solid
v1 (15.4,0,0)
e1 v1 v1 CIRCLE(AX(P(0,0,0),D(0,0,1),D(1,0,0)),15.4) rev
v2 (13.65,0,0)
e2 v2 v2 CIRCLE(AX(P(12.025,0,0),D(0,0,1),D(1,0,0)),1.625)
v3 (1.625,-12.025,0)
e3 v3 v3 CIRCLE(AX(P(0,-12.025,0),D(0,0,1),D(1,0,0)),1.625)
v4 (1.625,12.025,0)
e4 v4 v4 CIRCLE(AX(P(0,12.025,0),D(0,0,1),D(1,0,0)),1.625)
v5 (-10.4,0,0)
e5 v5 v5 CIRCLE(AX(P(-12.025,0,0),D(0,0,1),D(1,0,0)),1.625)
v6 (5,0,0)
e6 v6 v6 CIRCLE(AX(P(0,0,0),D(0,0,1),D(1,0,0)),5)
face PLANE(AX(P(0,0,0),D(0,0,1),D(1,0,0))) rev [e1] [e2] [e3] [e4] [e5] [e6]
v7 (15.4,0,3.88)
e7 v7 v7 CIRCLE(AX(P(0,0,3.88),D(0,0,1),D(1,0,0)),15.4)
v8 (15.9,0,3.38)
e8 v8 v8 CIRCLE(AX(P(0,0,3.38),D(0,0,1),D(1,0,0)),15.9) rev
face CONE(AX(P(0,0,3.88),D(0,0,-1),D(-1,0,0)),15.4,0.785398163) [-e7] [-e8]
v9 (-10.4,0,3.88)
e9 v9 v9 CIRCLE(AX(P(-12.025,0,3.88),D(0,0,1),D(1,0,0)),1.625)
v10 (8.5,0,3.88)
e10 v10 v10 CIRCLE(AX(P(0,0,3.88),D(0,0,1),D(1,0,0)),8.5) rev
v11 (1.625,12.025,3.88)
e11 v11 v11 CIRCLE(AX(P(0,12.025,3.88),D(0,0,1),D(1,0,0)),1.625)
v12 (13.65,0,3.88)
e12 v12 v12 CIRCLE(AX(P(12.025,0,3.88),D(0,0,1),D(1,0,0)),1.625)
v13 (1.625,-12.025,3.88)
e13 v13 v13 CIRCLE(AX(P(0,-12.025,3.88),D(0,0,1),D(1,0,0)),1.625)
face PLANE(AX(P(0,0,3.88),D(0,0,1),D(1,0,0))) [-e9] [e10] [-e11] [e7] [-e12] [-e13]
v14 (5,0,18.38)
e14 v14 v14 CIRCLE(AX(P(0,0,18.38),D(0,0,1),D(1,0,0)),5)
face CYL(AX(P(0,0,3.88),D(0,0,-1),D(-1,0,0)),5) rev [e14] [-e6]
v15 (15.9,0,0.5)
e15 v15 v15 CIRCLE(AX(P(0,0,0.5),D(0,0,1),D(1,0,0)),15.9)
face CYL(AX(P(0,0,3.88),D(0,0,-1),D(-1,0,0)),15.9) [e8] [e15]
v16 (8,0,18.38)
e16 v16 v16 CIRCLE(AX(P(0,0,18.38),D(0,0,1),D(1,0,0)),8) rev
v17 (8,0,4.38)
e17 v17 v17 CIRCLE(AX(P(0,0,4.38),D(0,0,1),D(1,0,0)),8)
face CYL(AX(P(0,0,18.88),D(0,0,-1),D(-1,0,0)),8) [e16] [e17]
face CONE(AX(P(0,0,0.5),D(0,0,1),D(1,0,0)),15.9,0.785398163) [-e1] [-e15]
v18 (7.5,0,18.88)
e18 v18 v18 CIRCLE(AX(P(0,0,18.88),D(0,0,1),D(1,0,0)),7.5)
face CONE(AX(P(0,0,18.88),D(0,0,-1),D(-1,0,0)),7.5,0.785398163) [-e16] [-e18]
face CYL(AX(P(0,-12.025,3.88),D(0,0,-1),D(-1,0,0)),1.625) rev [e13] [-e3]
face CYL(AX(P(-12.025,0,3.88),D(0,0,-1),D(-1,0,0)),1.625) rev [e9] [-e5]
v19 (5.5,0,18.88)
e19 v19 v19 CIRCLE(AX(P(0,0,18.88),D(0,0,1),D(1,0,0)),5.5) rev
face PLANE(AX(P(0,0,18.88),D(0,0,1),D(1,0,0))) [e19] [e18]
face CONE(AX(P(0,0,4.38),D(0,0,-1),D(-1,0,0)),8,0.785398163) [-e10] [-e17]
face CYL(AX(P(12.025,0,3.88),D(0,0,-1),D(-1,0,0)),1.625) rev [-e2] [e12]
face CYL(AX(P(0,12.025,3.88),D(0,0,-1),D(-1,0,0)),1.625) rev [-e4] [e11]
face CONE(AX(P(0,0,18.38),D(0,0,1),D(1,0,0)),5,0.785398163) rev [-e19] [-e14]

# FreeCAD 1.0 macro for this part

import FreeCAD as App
import Part
import Sketcher

V = App.Vector


def edges_at(feature, points):
    """Names of the edges that pass closest to the given points."""
    edges = feature.Shape.Edges
    near = lambda p: min(range(len(edges)), key=lambda i: edges[i].distToShape(Part.Vertex(*p))[0])
    return sorted({f"Edge{near(p) + 1}" for p in points})

doc = App.newDocument("Part")
params = doc.addObject("Spreadsheet::Sheet", "Params")
for row, (alias, value) in enumerate([
    ("sketch1_diameter", "10 mm"),
    ("sketch1_diameter2", "31.8 mm"),
    ("sketch1_diameter3", "3.25 mm"),
    ("pad1_length", "3.88 mm"),
    ("sketch2_diameter", "16 mm"),
    ("sketch2_diameter2", "10 mm"),
    ("pad2_length", "15 mm"),
    ("chamfer_size", "0.5 mm"),
], start=1):
    params.set(f"A{row}", alias)
    params.set(f"B{row}", "=" + value)
    params.setAlias(f"B{row}", alias)

body = doc.addObject("PartDesign::Body", "Body")

# Sketch on XY plane
sketch1 = body.newObject("Sketcher::SketchObject", "Sketch")
sketch1.AttachmentSupport = (doc.getObject("XY_Plane"), [""])
sketch1.MapMode = "FlatFace"
sketch1.addGeometry([
    Part.Circle(V(0, 0, 0), V(0, 0, 1), 15.9),  # 0
    Part.Circle(V(0, 0, 0), V(0, 0, 1), 5),  # 1
    Part.Circle(V(0, -12.025, 0), V(0, 0, 1), 1.625),  # 2
    Part.Circle(V(-12.025, 0, 0), V(0, 0, 1), 1.625),  # 3
    Part.Circle(V(12.025, 0, 0), V(0, 0, 1), 1.625),  # 4
    Part.Circle(V(0, 12.025, 0), V(0, 0, 1), 1.625),  # 5
], False)
sketch1.addConstraint([
    Sketcher.Constraint("Coincident", 0, 3, -1, 1),
    Sketcher.Constraint("Coincident", 1, 3, -1, 1),
    Sketcher.Constraint("Equal", 2, 3),
    Sketcher.Constraint("Equal", 3, 4),
    Sketcher.Constraint("Equal", 4, 5),
    Sketcher.Constraint("Symmetric", 3, 3, 4, 3, -1, 1),
    Sketcher.Constraint("Symmetric", 2, 3, 5, 3, -1, 1),
    Sketcher.Constraint("PointOnObject", 2, 3, -2),
    Sketcher.Constraint("PointOnObject", 3, 3, -1),
    Sketcher.Constraint("Diameter", 1, 10.0),
    Sketcher.Constraint("Diameter", 0, 31.8),
    Sketcher.Constraint("Diameter", 2, 3.25),
    Sketcher.Constraint("DistanceX", 3, 3, 4, 3, 24.05),
    Sketcher.Constraint("DistanceY", 2, 3, 5, 3, 24.05),
])
sketch1.setExpression("Constraints[9]", "Params.sketch1_diameter")
sketch1.setExpression("Constraints[10]", "Params.sketch1_diameter2")
sketch1.setExpression("Constraints[11]", "Params.sketch1_diameter3")
pad1 = body.newObject("PartDesign::Pad", "Pad")
pad1.Profile = sketch1
pad1.setExpression("Length", "Params.pad1_length")

# Sketch on XY plane
sketch2 = body.newObject("Sketcher::SketchObject", "Sketch001")
sketch2.AttachmentSupport = (doc.getObject("XY_Plane"), [""])
sketch2.MapMode = "FlatFace"
sketch2.AttachmentOffset = App.Placement(V(0, 0, 3.88), App.Rotation())
sketch2.addGeometry([
    Part.Circle(V(0, 0, 0), V(0, 0, 1), 8),
    Part.Circle(V(0, 0, 0), V(0, 0, 1), 5),
], False)
sketch2.addConstraint([
    Sketcher.Constraint("Coincident", 0, 3, -1, 1),
    Sketcher.Constraint("Coincident", 1, 3, -1, 1),
    Sketcher.Constraint("Diameter", 0, 16.0),
    Sketcher.Constraint("Diameter", 1, 10.0),
])
sketch2.setExpression("Constraints[2]", "Params.sketch2_diameter")
sketch2.setExpression("Constraints[3]", "Params.sketch2_diameter2")
pad2 = body.newObject("PartDesign::Pad", "Pad001")
pad2.Profile = sketch2
pad2.setExpression("Length", "Params.pad2_length")
doc.recompute()

chamfer = body.newObject("PartDesign::Chamfer", "Chamfer")
chamfer.Base = (pad2, edges_at(pad2, [
    (-15.9, 0, 0),
    (-8, 0, 18.88),
    (-8, 0, 3.88),
    (-5, 0, 18.88),
    (-15.9, 0, 3.88),
]))
chamfer.setExpression("Size", "Params.chamfer_size")

doc.recompute()
